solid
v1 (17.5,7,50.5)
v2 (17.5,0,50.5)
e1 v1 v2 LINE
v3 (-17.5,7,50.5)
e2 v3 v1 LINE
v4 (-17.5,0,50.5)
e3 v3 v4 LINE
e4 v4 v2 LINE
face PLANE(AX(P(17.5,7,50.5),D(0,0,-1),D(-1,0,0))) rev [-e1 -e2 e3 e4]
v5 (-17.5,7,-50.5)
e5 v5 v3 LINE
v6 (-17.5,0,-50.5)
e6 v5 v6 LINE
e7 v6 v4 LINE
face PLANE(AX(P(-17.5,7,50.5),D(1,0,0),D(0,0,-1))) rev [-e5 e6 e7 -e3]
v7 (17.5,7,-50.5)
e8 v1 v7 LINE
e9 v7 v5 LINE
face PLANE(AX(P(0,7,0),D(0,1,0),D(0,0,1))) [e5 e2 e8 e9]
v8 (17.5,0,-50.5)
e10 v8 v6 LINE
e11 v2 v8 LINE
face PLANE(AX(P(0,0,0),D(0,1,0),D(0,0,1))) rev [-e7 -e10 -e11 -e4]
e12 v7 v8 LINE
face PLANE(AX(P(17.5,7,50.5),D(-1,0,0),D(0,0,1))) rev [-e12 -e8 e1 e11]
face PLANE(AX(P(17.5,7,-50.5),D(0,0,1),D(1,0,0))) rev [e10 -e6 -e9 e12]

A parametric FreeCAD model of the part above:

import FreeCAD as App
import Part
import Sketcher
from FreeCAD import Vector

doc = App.newDocument("Part")
body = doc.addObject("PartDesign::Body", "Body")

# Sketch on XZ plane
sketch1 = body.newObject("Sketcher::SketchObject", "Sketch")
sketch1.AttachmentSupport = (doc.getObject("XZ_Plane"), [""])
sketch1.MapMode = "FlatFace"
sketch1.addGeometry(Part.LineSegment(Vector(-18, -50, 0), Vector(-18, 50, 0)), False)
sketch1.addGeometry(Part.LineSegment(Vector(-18, 50, 0), Vector(18, 50, 0)), False)
sketch1.addGeometry(Part.LineSegment(Vector(18, 50, 0), Vector(18, -50, 0)), False)
sketch1.addGeometry(Part.LineSegment(Vector(18, -50, 0), Vector(-18, -50, 0)), False)
sketch1.addConstraint(Sketcher.Constraint("Coincident", 0, 2, 1, 1))
sketch1.addConstraint(Sketcher.Constraint("Coincident", 1, 2, 2, 1))
sketch1.addConstraint(Sketcher.Constraint("Coincident", 2, 2, 3, 1))
sketch1.addConstraint(Sketcher.Constraint("Coincident", 3, 2, 0, 1))
sketch1.addConstraint(Sketcher.Constraint("Vertical", 0))
sketch1.addConstraint(Sketcher.Constraint("Horizontal", 1))
sketch1.addConstraint(Sketcher.Constraint("Vertical", 2))
sketch1.addConstraint(Sketcher.Constraint("Horizontal", 3))
sketch1.addConstraint(Sketcher.Constraint("Symmetric", 0, 2, 2, 2, -1, 1))
sketch1.addConstraint(Sketcher.Constraint("DistanceX", 1, 1, 1, 2, 35.0))
sketch1.addConstraint(Sketcher.Constraint("DistanceY", 0, 1, 0, 2, 101.0))
pad1 = body.newObject("PartDesign::Pad", "Pad")
pad1.Profile = sketch1
pad1.Length = 7
pad1.Reversed = True

doc.recompute()
